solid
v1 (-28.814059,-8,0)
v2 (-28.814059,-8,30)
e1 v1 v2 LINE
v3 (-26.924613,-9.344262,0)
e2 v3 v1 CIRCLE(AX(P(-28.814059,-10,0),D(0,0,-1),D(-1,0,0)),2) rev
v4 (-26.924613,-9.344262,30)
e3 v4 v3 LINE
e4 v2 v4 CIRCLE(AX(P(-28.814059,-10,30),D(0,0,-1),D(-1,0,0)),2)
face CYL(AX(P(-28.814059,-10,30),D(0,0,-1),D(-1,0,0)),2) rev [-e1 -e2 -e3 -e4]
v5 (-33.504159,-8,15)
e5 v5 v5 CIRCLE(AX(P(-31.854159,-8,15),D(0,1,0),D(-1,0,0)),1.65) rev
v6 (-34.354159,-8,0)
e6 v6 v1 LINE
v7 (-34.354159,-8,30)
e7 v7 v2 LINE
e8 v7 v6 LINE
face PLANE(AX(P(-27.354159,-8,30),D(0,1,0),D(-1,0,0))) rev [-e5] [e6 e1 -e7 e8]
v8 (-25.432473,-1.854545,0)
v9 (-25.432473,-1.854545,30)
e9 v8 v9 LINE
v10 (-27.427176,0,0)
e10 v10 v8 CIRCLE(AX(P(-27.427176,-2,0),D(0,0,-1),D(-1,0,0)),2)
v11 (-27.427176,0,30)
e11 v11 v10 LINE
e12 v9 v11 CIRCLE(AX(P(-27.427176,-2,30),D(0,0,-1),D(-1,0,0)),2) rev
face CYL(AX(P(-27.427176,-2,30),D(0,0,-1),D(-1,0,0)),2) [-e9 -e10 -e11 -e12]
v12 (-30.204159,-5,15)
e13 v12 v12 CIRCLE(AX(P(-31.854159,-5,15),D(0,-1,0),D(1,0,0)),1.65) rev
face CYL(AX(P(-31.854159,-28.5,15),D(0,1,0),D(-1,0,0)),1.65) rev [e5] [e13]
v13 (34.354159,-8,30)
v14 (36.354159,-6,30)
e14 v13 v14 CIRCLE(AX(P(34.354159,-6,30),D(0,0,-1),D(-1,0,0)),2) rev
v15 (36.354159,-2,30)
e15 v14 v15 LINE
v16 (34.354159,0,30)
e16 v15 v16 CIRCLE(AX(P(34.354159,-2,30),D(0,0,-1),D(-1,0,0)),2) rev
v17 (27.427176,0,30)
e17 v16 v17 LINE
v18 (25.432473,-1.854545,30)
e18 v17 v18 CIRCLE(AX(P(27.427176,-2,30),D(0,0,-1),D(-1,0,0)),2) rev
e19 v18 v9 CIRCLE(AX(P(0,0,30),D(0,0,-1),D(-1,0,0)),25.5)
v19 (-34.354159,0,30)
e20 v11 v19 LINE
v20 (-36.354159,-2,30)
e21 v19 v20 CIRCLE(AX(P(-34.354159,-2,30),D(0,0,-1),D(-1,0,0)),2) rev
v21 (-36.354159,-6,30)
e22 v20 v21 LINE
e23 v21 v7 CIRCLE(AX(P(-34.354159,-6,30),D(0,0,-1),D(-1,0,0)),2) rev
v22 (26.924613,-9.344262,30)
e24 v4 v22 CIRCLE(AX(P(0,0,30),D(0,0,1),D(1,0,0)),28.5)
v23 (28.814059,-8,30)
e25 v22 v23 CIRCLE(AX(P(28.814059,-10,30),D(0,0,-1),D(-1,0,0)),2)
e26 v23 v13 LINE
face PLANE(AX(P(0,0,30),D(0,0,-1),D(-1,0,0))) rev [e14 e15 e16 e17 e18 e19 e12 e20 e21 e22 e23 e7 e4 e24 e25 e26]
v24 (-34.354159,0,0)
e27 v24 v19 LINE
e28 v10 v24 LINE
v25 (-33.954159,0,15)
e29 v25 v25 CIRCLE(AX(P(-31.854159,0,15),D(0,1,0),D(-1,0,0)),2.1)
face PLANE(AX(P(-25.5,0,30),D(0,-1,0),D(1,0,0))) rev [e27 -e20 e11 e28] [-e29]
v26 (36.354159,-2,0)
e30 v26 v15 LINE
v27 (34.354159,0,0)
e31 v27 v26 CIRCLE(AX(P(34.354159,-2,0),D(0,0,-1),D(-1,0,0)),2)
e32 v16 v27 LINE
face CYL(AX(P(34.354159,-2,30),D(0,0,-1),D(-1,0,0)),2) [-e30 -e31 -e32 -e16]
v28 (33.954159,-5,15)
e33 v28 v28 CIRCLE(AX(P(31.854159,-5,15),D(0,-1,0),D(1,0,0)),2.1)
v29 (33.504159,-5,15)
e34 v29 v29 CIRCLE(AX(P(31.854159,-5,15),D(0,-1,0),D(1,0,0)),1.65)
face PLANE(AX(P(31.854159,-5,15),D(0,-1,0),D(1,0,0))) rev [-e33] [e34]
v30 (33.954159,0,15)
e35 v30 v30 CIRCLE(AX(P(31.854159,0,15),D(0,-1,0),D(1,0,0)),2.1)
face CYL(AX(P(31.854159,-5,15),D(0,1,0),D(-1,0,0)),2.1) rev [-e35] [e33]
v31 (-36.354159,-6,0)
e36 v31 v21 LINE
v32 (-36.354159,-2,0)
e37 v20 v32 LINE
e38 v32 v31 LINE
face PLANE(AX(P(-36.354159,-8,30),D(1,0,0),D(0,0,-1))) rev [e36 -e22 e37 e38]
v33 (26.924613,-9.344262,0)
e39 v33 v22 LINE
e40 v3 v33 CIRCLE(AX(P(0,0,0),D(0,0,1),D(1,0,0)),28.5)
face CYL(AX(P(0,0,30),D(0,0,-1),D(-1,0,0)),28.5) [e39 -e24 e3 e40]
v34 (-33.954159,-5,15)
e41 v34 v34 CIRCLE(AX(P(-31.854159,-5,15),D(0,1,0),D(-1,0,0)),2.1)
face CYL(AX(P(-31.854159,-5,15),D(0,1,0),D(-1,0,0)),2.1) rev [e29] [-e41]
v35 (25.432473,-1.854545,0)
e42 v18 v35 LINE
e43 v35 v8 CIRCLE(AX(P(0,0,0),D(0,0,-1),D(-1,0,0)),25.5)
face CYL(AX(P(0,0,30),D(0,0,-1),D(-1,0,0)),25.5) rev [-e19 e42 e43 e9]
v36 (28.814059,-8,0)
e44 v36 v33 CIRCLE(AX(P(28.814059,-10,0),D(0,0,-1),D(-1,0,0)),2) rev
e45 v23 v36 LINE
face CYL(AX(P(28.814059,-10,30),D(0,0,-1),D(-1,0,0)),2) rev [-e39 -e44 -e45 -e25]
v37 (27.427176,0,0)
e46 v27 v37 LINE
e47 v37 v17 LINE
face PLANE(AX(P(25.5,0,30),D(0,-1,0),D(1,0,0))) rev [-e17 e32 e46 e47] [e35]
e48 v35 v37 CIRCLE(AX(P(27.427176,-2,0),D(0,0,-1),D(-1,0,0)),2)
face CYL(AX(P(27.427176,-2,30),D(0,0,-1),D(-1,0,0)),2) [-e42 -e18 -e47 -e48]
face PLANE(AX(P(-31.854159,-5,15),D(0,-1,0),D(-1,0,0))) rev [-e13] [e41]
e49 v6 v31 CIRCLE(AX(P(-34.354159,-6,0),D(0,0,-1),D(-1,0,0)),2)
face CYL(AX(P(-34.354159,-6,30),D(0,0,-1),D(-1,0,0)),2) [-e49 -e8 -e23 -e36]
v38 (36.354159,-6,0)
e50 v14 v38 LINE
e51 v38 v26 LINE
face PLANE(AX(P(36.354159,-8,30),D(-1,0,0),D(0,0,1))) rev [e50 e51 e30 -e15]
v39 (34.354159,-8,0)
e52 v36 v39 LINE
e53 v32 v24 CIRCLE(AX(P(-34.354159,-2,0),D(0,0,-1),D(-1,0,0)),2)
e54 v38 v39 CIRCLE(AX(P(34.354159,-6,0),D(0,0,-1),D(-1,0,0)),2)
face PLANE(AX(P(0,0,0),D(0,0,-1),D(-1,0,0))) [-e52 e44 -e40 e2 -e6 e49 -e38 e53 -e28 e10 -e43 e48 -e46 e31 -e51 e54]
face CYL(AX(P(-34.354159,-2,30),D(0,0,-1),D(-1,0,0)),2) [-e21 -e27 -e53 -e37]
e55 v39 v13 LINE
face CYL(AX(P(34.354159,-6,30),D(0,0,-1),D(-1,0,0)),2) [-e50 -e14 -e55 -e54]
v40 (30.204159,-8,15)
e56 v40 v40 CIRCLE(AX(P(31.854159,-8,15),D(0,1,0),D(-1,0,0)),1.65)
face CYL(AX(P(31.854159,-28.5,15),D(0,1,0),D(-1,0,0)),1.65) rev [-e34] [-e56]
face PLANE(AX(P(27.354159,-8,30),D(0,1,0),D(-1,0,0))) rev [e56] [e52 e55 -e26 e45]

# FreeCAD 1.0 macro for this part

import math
import FreeCAD as App
import Part
import Sketcher
from FreeCAD import Vector
Q = App.Units.Quantity


def edges_at(feature, points):
    """Names of the edges that pass closest to the given points."""
    edges = feature.Shape.Edges
    near = lambda p: min(range(len(edges)), key=lambda i: edges[i].distToShape(Part.Vertex(*p))[0])
    return sorted({f"Edge{near(p) + 1}" for p in points})

doc = App.newDocument("Part")
body = doc.addObject("PartDesign::Body", "Body")

# Sketch on XY plane
sketch1 = body.newObject("Sketcher::SketchObject", "Sketch")
sketch1.AttachmentSupport = (doc.getObject("XY_Plane"), [""])
sketch1.MapMode = "FlatFace"
sketch1.addGeometry([
    Part.LineSegment(Vector(-26, 0, 0), Vector(-36, 0, 0)),  # 0
    Part.LineSegment(Vector(-36, 0, 0), Vector(-36, -8, 0)),  # 1
    Part.LineSegment(Vector(-36, -8, 0), Vector(-27, -8, 0)),  # 2
    Part.ArcOfCircle(Part.Circle(Vector(0, 0, 0), Vector(0, 0, 1), 28), math.radians(-164), math.radians(-16)),  # 3
    Part.LineSegment(Vector(27, -8, 0), Vector(36, -8, 0)),  # 4
    Part.LineSegment(Vector(36, -8, 0), Vector(36, 0, 0)),  # 5
    Part.LineSegment(Vector(36, 0, 0), Vector(26, 0, 0)),  # 6
    Part.ArcOfCircle(Part.Circle(Vector(0, 0, 0), Vector(0, 0, 1), 26), math.radians(180), math.radians(360)),  # 7
], False)
sketch1.addConstraint([
    Sketcher.Constraint("Coincident", 0, 2, 1, 1),
    Sketcher.Constraint("Coincident", 1, 2, 2, 1),
    Sketcher.Constraint("Coincident", 2, 2, 3, 1),
    Sketcher.Constraint("Coincident", 3, 2, 4, 1),
    Sketcher.Constraint("Coincident", 4, 2, 5, 1),
    Sketcher.Constraint("Coincident", 5, 2, 6, 1),
    Sketcher.Constraint("Coincident", 6, 2, 7, 2),
    Sketcher.Constraint("Coincident", 7, 1, 0, 1),
    Sketcher.Constraint("Horizontal", 0),
    Sketcher.Constraint("Vertical", 1),
    Sketcher.Constraint("Horizontal", 2),
    Sketcher.Constraint("Horizontal", 4),
    Sketcher.Constraint("Vertical", 5),
    Sketcher.Constraint("Horizontal", 6),
    Sketcher.Constraint("Coincident", 3, 3, -1, 1),
    Sketcher.Constraint("Coincident", 7, 3, -1, 1),
    Sketcher.Constraint("Symmetric", 0, 2, 5, 2, -1, 1),
    Sketcher.Constraint("PointOnObject", 0, 2, -1),
    Sketcher.Constraint("Horizontal", 2, 2, 3, 2),
    Sketcher.Constraint("Radius", 3, Q("28.5 mm")),
    Sketcher.Constraint("Radius", 7, Q("25.5 mm")),
    Sketcher.Constraint("DistanceX", 2, 1, 2, 2, Q("9 mm")),
    Sketcher.Constraint("DistanceY", 1, 2, 1, 1, Q("8 mm")),
])
pad1 = body.newObject("PartDesign::Pad", "Pad")
pad1.Profile = sketch1
pad1.Length = 30

# Sketch on XZ plane
sketch2 = body.newObject("Sketcher::SketchObject", "Sketch001")
sketch2.AttachmentSupport = (doc.getObject("XZ_Plane"), [""])
sketch2.MapMode = "FlatFace"
sketch2.addGeometry(Part.Circle(Vector(31.9, 15, 0), Vector(0, 0, 1), 2.1), False)
sketch2.addConstraint([
    Sketcher.Constraint("Diameter", 0, Q("4.2 mm")),
    Sketcher.Constraint("DistanceY", -1, 1, 0, 3, Q("15 mm")),
    Sketcher.Constraint("DistanceX", -1, 1, 0, 3, Q("31.854159 mm")),
])
pocket1 = body.newObject("PartDesign::Pocket", "Pocket")
pocket1.Profile = sketch2
pocket1.Length = 5
pocket1.Reversed = True

# Sketch on XZ plane
sketch3 = body.newObject("Sketcher::SketchObject", "Sketch002")
sketch3.AttachmentSupport = (doc.getObject("XZ_Plane"), [""])
sketch3.MapMode = "FlatFace"
sketch3.addGeometry(Part.Circle(Vector(31.9, 15, 0), Vector(0, 0, 1), 1.6), False)
sketch3.addConstraint([
    Sketcher.Constraint("Diameter", 0, Q("3.3 mm")),
    Sketcher.Constraint("DistanceY", -1, 1, 0, 3, Q("15 mm")),
    Sketcher.Constraint("DistanceX", -1, 1, 0, 3, Q("31.854159 mm")),
])
pocket2 = body.newObject("PartDesign::Pocket", "Pocket001")
pocket2.Profile = sketch3
pocket2.Type = "ThroughAll"
pocket2.Reversed = True
doc.recompute()

mirrored = body.newObject("PartDesign::Mirrored", "Mirrored")
mirrored.Originals = [pocket1, pocket2]
mirrored.MirrorPlane = (doc.getObject("YZ_Plane"), [""])
body.Tip = mirrored
doc.recompute()

fillet = body.newObject("PartDesign::Fillet", "Fillet")
fillet.Base = (mirrored, edges_at(mirrored, [
    (-36.354, 0, 15),
    (-25.5, 0, 15),
    (25.5, 0, 15),
    (36.354, 0, 15),
    (36.354, -8, 15),
    (27.354, -8, 15),
    (-27.354, -8, 15),
    (-36.354, -8, 15),
]))
fillet.Radius = 2

doc.recompute()
